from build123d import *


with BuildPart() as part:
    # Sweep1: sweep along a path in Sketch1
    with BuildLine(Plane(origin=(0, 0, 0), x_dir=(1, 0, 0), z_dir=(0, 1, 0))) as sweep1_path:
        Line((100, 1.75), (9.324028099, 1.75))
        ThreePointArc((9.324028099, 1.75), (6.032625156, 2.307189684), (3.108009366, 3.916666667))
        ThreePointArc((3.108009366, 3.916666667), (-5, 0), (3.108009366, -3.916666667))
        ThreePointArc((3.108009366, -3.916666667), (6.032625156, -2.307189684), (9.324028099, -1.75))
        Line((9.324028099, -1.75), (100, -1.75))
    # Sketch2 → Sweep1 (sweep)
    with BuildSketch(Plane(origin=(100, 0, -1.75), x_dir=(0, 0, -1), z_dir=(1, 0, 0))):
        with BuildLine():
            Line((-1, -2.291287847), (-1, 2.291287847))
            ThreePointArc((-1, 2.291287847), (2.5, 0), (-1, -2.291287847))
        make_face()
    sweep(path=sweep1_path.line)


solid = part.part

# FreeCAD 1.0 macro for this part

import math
import FreeCAD as App
import Part
import Sketcher

V = App.Vector
Q = App.Units.Quantity

doc = App.newDocument("Part")
body = doc.addObject("PartDesign::Body", "Body")

# Sketch on YZ plane
sketch1 = body.newObject("Sketcher::SketchObject", "Sketch")
sketch1.AttachmentSupport = (doc.getObject("YZ_Plane"), [""])
sketch1.MapMode = "FlatFace"
sketch1.AttachmentOffset = App.Placement(V(0, 0, 100), App.Rotation())
sketch1.addGeometry(Part.LineSegment(V(2.291288, -0.75, 0), V(-2.291288, -0.75, 0)), False)
sketch1.addGeometry(Part.ArcOfCircle(Part.Circle(V(0, -1.75, 0), V(0, 0, 1), 2.5), math.radians(156.421822), math.radians(383.578178)), False)
sketch1.addConstraint(Sketcher.Constraint("Coincident", 0, 1, 1, 2))
sketch1.addConstraint(Sketcher.Constraint("Coincident", 1, 1, 0, 2))
sketch1.addConstraint(Sketcher.Constraint("Horizontal", 0))
sketch1.addConstraint(Sketcher.Constraint("PointOnObject", 1, 3, -2))
sketch1.addConstraint(Sketcher.Constraint("Radius", 1, Q("2.5 mm")))
sketch1.addConstraint(Sketcher.Constraint("DistanceY", 1, 3, 0, 1, Q("1 mm")))
sketch1.addConstraint(Sketcher.Constraint("DistanceY", 1, 3, -1, 1, Q("1.75 mm")))

# Sketch on XZ plane
sketch2 = body.newObject("Sketcher::SketchObject", "Sketch001")
sketch2.AttachmentSupport = (doc.getObject("XZ_Plane"), [""])
sketch2.MapMode = "FlatFace"
sketch2.addGeometry(Part.LineSegment(V(100, -1.75, 0), V(9.324028, -1.75, 0)), False)
sketch2.addGeometry(Part.ArcOfCircle(Part.Circle(V(9.324028, -11.75, 0), V(0, 0, 1), 10), math.radians(90), math.radians(128.433206)), False)
sketch2.addGeometry(Part.ArcOfCircle(Part.Circle(V(0, 0, 0), V(0, 0, 1), 5), math.radians(51.566794), math.radians(308.433206)), False)
sketch2.addGeometry(Part.ArcOfCircle(Part.Circle(V(9.324028, 11.75, 0), V(0, 0, 1), 10), math.radians(-128.433206), math.radians(-90)), False)
sketch2.addGeometry(Part.LineSegment(V(9.324028, 1.75, 0), V(100, 1.75, 0)), False)
sketch2.addConstraint(Sketcher.Constraint("Tangent", 0, 2, 1, 1))
sketch2.addConstraint(Sketcher.Constraint("Tangent", 1, 2, 2, 2))
sketch2.addConstraint(Sketcher.Constraint("Tangent", 2, 1, 3, 1))
sketch2.addConstraint(Sketcher.Constraint("Tangent", 3, 2, 4, 1))
sketch2.addConstraint(Sketcher.Constraint("Horizontal", 0))
sketch2.addConstraint(Sketcher.Constraint("Horizontal", 4))
sketch2.addConstraint(Sketcher.Constraint("Coincident", 2, 3, -1, 1))
sketch2.addConstraint(Sketcher.Constraint("Equal", 1, 3))
sketch2.addConstraint(Sketcher.Constraint("Symmetric", 0, 1, 4, 2, -1))
sketch2.addConstraint(Sketcher.Constraint("Radius", 1, Q("10 mm")))
sketch2.addConstraint(Sketcher.Constraint("Radius", 2, Q("5 mm")))
sketch2.addConstraint(Sketcher.Constraint("DistanceX", -1, 1, 0, 1, Q("100 mm")))
sketch2.addConstraint(Sketcher.Constraint("DistanceY", 1, 3, 3, 3, Q("23.5 mm")))
doc.recompute()

additivepipe = body.newObject("PartDesign::AdditivePipe", "AdditivePipe")
additivepipe.Profile = sketch1
additivepipe.Spine = (sketch2, ["Edge1", "Edge2", "Edge3", "Edge4", "Edge5"])

doc.recompute()
